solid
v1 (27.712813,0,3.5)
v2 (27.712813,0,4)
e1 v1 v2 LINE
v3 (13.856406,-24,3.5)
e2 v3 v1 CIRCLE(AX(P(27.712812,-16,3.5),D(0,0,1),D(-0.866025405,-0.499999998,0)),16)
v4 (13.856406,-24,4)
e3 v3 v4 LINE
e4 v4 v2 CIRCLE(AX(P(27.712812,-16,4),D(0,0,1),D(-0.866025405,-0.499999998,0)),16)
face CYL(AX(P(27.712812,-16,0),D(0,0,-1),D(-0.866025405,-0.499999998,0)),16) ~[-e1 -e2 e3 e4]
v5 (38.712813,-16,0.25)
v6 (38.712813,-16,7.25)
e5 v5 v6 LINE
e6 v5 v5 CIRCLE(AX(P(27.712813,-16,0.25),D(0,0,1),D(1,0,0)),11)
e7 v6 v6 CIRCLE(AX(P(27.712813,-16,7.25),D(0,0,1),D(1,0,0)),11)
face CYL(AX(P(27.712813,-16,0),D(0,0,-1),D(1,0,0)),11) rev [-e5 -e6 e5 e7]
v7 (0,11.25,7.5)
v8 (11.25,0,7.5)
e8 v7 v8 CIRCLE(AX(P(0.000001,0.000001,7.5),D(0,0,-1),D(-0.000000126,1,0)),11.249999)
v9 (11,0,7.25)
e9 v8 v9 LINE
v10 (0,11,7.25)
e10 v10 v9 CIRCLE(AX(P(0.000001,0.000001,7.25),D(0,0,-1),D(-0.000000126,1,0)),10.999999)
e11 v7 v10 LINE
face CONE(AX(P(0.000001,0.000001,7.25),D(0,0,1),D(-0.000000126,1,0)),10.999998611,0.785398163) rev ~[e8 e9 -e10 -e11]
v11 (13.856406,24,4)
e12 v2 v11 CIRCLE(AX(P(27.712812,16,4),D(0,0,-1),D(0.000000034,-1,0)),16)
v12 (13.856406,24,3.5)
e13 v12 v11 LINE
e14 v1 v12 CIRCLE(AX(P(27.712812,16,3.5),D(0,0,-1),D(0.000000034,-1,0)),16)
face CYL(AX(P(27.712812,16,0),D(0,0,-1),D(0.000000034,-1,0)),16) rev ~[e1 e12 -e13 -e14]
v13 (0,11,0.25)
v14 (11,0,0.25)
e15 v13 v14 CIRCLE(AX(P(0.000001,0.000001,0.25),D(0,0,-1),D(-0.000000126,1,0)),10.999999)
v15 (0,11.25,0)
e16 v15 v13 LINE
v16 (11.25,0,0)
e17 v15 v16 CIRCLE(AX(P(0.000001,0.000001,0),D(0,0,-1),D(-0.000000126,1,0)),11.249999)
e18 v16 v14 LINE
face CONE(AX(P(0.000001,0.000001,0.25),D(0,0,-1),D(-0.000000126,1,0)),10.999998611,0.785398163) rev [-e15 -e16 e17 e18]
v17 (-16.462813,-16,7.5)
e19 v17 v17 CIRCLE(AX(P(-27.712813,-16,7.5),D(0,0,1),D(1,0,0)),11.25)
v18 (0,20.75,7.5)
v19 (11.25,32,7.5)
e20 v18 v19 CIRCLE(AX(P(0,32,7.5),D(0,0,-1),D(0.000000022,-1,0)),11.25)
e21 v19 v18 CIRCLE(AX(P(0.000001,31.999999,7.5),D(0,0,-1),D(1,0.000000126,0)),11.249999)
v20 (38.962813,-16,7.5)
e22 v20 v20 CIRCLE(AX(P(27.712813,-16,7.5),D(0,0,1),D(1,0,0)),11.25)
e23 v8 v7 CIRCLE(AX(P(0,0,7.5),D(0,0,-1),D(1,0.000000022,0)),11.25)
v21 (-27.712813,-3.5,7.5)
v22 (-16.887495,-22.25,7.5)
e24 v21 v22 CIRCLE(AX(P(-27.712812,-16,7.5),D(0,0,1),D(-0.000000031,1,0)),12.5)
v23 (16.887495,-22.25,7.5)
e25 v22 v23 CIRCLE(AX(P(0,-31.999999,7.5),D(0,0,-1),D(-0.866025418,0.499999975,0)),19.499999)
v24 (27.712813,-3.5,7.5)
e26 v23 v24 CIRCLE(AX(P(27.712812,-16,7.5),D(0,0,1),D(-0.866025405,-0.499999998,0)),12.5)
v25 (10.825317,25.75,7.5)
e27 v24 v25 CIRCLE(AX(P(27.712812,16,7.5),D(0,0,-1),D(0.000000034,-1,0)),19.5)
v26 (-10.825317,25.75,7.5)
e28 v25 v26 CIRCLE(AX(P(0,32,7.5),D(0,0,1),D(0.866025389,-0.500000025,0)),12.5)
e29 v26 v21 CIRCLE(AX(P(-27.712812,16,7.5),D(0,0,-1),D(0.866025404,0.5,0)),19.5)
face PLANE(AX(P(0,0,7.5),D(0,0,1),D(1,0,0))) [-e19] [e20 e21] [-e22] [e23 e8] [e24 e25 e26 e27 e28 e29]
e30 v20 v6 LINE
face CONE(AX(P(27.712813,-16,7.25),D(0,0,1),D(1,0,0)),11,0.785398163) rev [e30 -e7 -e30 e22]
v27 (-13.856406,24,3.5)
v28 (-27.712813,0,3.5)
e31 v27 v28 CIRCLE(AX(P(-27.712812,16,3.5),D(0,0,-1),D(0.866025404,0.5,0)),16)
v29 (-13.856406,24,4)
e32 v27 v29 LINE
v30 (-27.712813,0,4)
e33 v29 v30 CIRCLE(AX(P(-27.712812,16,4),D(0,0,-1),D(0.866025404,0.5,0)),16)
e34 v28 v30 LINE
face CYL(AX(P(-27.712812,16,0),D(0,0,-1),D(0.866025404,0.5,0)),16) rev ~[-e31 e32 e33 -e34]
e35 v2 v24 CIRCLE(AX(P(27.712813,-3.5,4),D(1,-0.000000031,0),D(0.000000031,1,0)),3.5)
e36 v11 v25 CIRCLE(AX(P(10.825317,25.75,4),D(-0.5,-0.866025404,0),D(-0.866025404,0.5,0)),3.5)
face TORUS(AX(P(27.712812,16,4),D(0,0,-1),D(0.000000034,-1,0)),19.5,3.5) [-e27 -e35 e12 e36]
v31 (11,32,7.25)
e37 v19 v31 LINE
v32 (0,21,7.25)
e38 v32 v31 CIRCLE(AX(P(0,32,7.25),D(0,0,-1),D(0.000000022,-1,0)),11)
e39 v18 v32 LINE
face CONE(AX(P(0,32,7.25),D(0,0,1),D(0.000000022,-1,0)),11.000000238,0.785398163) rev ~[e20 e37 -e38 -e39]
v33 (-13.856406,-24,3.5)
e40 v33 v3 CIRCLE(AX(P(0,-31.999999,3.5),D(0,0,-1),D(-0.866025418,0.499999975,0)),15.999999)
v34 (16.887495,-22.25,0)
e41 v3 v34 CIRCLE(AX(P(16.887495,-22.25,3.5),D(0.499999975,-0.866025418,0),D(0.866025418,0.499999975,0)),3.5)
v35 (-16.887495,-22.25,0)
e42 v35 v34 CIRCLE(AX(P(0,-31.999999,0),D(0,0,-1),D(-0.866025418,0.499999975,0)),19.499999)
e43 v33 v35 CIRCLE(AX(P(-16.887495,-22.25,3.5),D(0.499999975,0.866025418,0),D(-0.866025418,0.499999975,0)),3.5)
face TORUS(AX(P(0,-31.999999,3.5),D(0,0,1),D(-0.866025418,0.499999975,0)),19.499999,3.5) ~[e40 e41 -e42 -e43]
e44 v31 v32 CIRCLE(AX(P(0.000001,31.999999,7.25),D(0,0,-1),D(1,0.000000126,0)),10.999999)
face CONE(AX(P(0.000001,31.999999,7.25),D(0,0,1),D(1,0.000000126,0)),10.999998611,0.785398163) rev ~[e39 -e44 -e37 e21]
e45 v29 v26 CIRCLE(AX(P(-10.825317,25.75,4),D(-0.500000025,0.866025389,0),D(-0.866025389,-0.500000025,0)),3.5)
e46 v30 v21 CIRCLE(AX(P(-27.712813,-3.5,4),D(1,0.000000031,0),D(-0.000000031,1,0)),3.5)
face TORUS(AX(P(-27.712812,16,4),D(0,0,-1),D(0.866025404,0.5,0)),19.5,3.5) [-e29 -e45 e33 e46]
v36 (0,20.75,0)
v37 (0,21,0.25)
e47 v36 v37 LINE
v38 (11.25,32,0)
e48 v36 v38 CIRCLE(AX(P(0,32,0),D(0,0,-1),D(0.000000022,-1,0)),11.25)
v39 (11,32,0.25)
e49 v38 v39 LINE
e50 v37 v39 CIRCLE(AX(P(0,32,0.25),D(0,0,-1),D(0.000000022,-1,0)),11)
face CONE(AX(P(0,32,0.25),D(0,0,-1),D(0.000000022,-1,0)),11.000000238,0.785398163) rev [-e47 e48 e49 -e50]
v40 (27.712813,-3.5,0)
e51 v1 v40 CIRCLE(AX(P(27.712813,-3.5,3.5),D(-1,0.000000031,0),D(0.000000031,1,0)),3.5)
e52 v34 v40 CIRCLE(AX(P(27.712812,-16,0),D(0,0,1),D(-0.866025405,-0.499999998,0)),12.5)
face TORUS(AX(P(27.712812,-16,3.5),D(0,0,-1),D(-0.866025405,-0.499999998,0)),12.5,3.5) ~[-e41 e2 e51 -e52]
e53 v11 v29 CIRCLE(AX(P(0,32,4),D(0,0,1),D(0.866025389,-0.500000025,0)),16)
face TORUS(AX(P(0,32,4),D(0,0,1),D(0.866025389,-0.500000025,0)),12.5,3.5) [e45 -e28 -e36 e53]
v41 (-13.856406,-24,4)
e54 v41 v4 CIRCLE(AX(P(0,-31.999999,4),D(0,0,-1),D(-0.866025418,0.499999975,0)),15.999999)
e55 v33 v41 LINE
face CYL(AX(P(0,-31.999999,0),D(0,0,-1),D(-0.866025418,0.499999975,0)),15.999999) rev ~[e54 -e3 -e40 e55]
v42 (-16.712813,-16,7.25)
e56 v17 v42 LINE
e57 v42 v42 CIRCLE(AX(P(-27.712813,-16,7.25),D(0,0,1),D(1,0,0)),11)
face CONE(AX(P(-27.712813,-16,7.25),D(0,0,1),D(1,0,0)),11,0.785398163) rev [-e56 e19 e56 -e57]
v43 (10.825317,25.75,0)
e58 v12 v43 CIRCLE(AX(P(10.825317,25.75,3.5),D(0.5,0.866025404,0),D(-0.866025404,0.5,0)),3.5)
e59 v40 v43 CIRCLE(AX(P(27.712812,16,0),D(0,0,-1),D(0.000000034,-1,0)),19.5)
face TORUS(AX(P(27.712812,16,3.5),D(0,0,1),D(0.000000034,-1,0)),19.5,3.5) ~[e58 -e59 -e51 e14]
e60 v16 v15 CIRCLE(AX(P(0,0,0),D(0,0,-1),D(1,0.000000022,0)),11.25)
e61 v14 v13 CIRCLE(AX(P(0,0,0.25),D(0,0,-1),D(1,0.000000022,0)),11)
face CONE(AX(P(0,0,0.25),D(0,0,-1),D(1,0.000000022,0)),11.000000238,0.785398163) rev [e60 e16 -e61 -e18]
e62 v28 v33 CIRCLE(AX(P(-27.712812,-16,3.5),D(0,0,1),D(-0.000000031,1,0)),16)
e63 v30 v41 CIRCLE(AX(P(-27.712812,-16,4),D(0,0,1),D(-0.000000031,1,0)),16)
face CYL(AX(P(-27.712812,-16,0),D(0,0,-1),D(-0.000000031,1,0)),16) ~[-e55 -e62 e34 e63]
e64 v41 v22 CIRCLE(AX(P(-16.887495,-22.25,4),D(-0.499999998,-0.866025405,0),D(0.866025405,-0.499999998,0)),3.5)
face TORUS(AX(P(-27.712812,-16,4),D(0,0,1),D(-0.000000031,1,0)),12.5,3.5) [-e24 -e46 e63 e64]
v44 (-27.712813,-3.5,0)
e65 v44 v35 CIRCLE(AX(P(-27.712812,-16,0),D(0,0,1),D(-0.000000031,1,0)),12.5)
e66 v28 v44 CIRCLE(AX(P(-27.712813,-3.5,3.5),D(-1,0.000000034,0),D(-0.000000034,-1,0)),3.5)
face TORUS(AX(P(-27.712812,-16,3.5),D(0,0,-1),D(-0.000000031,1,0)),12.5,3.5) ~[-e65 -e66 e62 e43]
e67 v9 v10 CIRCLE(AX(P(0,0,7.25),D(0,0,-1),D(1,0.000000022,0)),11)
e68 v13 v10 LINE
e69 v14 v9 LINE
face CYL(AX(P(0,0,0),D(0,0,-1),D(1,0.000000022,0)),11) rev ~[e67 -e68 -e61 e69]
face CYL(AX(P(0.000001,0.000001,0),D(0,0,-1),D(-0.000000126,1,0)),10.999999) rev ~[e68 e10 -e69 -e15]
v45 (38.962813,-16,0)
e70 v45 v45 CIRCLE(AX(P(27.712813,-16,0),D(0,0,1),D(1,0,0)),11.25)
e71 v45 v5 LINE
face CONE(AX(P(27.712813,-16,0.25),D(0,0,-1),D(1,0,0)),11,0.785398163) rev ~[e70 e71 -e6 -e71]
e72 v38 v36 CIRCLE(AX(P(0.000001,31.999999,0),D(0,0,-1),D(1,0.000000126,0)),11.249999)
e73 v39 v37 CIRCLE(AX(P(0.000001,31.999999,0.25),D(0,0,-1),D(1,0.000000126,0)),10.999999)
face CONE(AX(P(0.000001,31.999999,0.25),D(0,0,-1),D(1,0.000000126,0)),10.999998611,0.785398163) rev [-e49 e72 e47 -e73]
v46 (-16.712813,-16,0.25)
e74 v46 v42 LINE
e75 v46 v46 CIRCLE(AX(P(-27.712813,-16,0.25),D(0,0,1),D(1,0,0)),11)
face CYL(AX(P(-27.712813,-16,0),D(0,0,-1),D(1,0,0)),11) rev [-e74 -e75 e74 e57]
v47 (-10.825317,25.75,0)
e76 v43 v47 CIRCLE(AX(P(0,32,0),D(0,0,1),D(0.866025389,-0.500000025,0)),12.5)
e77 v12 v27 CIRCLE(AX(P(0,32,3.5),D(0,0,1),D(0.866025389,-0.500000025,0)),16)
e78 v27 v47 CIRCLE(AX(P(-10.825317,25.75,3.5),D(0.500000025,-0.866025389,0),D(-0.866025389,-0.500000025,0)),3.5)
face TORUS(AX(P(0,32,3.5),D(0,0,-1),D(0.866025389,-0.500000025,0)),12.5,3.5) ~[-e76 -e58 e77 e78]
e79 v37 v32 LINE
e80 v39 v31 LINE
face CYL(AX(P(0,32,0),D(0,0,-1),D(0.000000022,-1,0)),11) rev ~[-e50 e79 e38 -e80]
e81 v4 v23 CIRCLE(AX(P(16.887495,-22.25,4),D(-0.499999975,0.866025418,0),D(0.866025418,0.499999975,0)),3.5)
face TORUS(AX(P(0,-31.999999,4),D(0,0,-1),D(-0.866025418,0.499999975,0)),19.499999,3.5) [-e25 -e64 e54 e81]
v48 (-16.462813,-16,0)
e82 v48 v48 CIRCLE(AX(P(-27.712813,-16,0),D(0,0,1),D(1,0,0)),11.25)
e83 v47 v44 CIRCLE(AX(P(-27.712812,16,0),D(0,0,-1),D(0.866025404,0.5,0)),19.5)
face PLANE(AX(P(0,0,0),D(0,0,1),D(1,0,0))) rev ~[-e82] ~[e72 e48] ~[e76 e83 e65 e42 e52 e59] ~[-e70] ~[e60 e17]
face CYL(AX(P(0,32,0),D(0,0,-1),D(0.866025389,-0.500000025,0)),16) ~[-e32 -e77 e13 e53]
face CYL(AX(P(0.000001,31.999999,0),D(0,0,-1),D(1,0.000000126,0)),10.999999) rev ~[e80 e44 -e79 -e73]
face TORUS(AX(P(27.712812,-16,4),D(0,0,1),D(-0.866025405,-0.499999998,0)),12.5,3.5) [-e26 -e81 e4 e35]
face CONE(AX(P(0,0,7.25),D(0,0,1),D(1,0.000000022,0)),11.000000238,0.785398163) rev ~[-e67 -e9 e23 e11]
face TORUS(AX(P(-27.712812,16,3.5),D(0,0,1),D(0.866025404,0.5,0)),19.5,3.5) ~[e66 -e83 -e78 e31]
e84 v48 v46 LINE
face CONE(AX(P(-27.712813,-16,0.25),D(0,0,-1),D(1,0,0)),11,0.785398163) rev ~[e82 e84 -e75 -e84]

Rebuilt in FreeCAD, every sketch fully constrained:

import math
import FreeCAD as App
import Part
import Sketcher
from FreeCAD import Vector


def edges_at(feature, points):
    """Names of the edges that pass closest to the given points."""
    edges = feature.Shape.Edges
    near = lambda p: min(range(len(edges)), key=lambda i: edges[i].distToShape(Part.Vertex(*p))[0])
    return sorted({f"Edge{near(p) + 1}" for p in points})

doc = App.newDocument("Part")
params = doc.addObject("Spreadsheet::Sheet", "Params")
for row, (alias, value) in enumerate([
    ("sketch1_diameter", "22 mm"),
    ("sketch1_radius", "16 mm"),
    ("pad1_length", "7.5 mm"),
    ("fillet_radius", "3.5 mm"),
    ("chamfer_size", "0.25 mm"),
], start=1):
    params.set(f"A{row}", alias)
    params.set(f"B{row}", "=" + value)
    params.setAlias(f"B{row}", alias)

body = doc.addObject("PartDesign::Body", "Body")

# Sketch on XY plane
sketch1 = body.newObject("Sketcher::SketchObject", "Sketch")
sketch1.AttachmentSupport = (doc.getObject("XY_Plane"), [""])
sketch1.MapMode = "FlatFace"
sketch1.addGeometry(Part.ArcOfCircle(Part.Circle(Vector(28, 16, 0), Vector(0, 0, 1), 16), math.radians(150), math.radians(270)), False)
sketch1.addGeometry(Part.ArcOfCircle(Part.Circle(Vector(0, 32, 0), Vector(0, 0, 1), 16), math.radians(-30), math.radians(210)), False)
sketch1.addGeometry(Part.ArcOfCircle(Part.Circle(Vector(-28, 16, 0), Vector(0, 0, 1), 16), math.radians(-90), math.radians(30)), False)
sketch1.addGeometry(Part.ArcOfCircle(Part.Circle(Vector(-28, -16, 0), Vector(0, 0, 1), 16), math.radians(90), math.radians(330)), False)
sketch1.addGeometry(Part.ArcOfCircle(Part.Circle(Vector(0, -32, 0), Vector(0, 0, 1), 16), math.radians(30), math.radians(150)), False)
sketch1.addGeometry(Part.ArcOfCircle(Part.Circle(Vector(28, -16, 0), Vector(0, 0, 1), 16), math.radians(-150), math.radians(90)), False)
sketch1.addGeometry(Part.Circle(Vector(-28, -16, 0), Vector(0, 0, 1), 11), False)
sketch1.addGeometry(Part.ArcOfCircle(Part.Circle(Vector(0, 0, 0), Vector(0, 0, 1), 11), math.radians(90), math.radians(360)), False)
sketch1.addGeometry(Part.ArcOfCircle(Part.Circle(Vector(0, 0, 0), Vector(0, 0, 1), 11), math.radians(0), math.radians(90)), False)
sketch1.addGeometry(Part.Circle(Vector(28, -16, 0), Vector(0, 0, 1), 11), False)
sketch1.addGeometry(Part.ArcOfCircle(Part.Circle(Vector(0, 32, 0), Vector(0, 0, 1), 11), math.radians(0), math.radians(270)), False)
sketch1.addGeometry(Part.ArcOfCircle(Part.Circle(Vector(0, 32, 0), Vector(0, 0, 1), 11), math.radians(-90), math.radians(0)), False)
sketch1.addConstraint(Sketcher.Constraint("Tangent", 0, 1, 1, 1))
sketch1.addConstraint(Sketcher.Constraint("Tangent", 1, 2, 2, 2))
sketch1.addConstraint(Sketcher.Constraint("Tangent", 2, 1, 3, 1))
sketch1.addConstraint(Sketcher.Constraint("Tangent", 3, 2, 4, 2))
sketch1.addConstraint(Sketcher.Constraint("Tangent", 4, 1, 5, 1))
sketch1.addConstraint(Sketcher.Constraint("Tangent", 5, 2, 0, 2))
sketch1.addConstraint(Sketcher.Constraint("Tangent", 7, 1, 8, 2))
sketch1.addConstraint(Sketcher.Constraint("Coincident", 8, 1, 7, 2))
sketch1.addConstraint(Sketcher.Constraint("Tangent", 10, 1, 11, 2))
sketch1.addConstraint(Sketcher.Constraint("Coincident", 11, 1, 10, 2))
sketch1.addConstraint(Sketcher.Constraint("Coincident", 7, 3, -1, 1))
sketch1.addConstraint(Sketcher.Constraint("Coincident", 6, 3, 3, 3))
sketch1.addConstraint(Sketcher.Constraint("Coincident", 9, 3, 5, 3))
sketch1.addConstraint(Sketcher.Constraint("Coincident", 10, 3, 1, 3))
sketch1.addConstraint(Sketcher.Constraint("Equal", 0, 1))
sketch1.addConstraint(Sketcher.Constraint("Equal", 1, 2))
sketch1.addConstraint(Sketcher.Constraint("Equal", 2, 3))
sketch1.addConstraint(Sketcher.Constraint("Equal", 3, 4))
sketch1.addConstraint(Sketcher.Constraint("Equal", 4, 5))
sketch1.addConstraint(Sketcher.Constraint("Equal", 6, 7))
sketch1.addConstraint(Sketcher.Constraint("Equal", 8, 9))
sketch1.addConstraint(Sketcher.Constraint("Equal", 9, 10))
sketch1.addConstraint(Sketcher.Constraint("Symmetric", 0, 3, 3, 3, -1, 1))
sketch1.addConstraint(Sketcher.Constraint("Symmetric", 0, 3, 2, 3, -2))
sketch1.addConstraint(Sketcher.Constraint("PointOnObject", 4, 3, -2))
sketch1.addConstraint(Sketcher.Constraint("PointOnObject", 7, 1, -2))
sketch1.addConstraint(Sketcher.Constraint("PointOnObject", 8, 1, -1))
sketch1.addConstraint(Sketcher.Constraint("PointOnObject", 11, 1, -2))
sketch1.addConstraint(Sketcher.Constraint("Horizontal", 11, 3, 10, 1))
sketch1.addConstraint(Sketcher.Constraint("Diameter", 6, 22.0))
sketch1.addConstraint(Sketcher.Constraint("Radius", 0, 16.0))
sketch1.addConstraint(Sketcher.Constraint("DistanceY", -1, 1, 1, 3, 32.0))
sketch1.setExpression("Constraints[29]", "Params.sketch1_diameter")
sketch1.setExpression("Constraints[30]", "Params.sketch1_radius")
pad1 = body.newObject("PartDesign::Pad", "Pad")
pad1.Profile = sketch1
pad1.setExpression("Length", "Params.pad1_length")
doc.recompute()

fillet = body.newObject("PartDesign::Fillet", "Fillet")
fillet.Base = (pad1, edges_at(pad1, [(-41.569, -24, 7.5), (0, -16, 0)]))
fillet.setExpression("Radius", "Params.fillet_radius")
doc.recompute()

chamfer = body.newObject("PartDesign::Chamfer", "Chamfer")
chamfer.Base = (fillet, edges_at(fillet, [
    (-7.778, 39.778, 7.5),
    (-7.778, -7.778, 7.5),
    (-38.713, -16, 7.5),
    (16.713, -16, 7.5),
    (16.713, -16, 0),
    (-7.778, -7.778, 0),
    (-38.713, -16, 0),
    (-7.778, 39.778, 0),
]))
chamfer.setExpression("Size", "Params.chamfer_size")

doc.recompute()
